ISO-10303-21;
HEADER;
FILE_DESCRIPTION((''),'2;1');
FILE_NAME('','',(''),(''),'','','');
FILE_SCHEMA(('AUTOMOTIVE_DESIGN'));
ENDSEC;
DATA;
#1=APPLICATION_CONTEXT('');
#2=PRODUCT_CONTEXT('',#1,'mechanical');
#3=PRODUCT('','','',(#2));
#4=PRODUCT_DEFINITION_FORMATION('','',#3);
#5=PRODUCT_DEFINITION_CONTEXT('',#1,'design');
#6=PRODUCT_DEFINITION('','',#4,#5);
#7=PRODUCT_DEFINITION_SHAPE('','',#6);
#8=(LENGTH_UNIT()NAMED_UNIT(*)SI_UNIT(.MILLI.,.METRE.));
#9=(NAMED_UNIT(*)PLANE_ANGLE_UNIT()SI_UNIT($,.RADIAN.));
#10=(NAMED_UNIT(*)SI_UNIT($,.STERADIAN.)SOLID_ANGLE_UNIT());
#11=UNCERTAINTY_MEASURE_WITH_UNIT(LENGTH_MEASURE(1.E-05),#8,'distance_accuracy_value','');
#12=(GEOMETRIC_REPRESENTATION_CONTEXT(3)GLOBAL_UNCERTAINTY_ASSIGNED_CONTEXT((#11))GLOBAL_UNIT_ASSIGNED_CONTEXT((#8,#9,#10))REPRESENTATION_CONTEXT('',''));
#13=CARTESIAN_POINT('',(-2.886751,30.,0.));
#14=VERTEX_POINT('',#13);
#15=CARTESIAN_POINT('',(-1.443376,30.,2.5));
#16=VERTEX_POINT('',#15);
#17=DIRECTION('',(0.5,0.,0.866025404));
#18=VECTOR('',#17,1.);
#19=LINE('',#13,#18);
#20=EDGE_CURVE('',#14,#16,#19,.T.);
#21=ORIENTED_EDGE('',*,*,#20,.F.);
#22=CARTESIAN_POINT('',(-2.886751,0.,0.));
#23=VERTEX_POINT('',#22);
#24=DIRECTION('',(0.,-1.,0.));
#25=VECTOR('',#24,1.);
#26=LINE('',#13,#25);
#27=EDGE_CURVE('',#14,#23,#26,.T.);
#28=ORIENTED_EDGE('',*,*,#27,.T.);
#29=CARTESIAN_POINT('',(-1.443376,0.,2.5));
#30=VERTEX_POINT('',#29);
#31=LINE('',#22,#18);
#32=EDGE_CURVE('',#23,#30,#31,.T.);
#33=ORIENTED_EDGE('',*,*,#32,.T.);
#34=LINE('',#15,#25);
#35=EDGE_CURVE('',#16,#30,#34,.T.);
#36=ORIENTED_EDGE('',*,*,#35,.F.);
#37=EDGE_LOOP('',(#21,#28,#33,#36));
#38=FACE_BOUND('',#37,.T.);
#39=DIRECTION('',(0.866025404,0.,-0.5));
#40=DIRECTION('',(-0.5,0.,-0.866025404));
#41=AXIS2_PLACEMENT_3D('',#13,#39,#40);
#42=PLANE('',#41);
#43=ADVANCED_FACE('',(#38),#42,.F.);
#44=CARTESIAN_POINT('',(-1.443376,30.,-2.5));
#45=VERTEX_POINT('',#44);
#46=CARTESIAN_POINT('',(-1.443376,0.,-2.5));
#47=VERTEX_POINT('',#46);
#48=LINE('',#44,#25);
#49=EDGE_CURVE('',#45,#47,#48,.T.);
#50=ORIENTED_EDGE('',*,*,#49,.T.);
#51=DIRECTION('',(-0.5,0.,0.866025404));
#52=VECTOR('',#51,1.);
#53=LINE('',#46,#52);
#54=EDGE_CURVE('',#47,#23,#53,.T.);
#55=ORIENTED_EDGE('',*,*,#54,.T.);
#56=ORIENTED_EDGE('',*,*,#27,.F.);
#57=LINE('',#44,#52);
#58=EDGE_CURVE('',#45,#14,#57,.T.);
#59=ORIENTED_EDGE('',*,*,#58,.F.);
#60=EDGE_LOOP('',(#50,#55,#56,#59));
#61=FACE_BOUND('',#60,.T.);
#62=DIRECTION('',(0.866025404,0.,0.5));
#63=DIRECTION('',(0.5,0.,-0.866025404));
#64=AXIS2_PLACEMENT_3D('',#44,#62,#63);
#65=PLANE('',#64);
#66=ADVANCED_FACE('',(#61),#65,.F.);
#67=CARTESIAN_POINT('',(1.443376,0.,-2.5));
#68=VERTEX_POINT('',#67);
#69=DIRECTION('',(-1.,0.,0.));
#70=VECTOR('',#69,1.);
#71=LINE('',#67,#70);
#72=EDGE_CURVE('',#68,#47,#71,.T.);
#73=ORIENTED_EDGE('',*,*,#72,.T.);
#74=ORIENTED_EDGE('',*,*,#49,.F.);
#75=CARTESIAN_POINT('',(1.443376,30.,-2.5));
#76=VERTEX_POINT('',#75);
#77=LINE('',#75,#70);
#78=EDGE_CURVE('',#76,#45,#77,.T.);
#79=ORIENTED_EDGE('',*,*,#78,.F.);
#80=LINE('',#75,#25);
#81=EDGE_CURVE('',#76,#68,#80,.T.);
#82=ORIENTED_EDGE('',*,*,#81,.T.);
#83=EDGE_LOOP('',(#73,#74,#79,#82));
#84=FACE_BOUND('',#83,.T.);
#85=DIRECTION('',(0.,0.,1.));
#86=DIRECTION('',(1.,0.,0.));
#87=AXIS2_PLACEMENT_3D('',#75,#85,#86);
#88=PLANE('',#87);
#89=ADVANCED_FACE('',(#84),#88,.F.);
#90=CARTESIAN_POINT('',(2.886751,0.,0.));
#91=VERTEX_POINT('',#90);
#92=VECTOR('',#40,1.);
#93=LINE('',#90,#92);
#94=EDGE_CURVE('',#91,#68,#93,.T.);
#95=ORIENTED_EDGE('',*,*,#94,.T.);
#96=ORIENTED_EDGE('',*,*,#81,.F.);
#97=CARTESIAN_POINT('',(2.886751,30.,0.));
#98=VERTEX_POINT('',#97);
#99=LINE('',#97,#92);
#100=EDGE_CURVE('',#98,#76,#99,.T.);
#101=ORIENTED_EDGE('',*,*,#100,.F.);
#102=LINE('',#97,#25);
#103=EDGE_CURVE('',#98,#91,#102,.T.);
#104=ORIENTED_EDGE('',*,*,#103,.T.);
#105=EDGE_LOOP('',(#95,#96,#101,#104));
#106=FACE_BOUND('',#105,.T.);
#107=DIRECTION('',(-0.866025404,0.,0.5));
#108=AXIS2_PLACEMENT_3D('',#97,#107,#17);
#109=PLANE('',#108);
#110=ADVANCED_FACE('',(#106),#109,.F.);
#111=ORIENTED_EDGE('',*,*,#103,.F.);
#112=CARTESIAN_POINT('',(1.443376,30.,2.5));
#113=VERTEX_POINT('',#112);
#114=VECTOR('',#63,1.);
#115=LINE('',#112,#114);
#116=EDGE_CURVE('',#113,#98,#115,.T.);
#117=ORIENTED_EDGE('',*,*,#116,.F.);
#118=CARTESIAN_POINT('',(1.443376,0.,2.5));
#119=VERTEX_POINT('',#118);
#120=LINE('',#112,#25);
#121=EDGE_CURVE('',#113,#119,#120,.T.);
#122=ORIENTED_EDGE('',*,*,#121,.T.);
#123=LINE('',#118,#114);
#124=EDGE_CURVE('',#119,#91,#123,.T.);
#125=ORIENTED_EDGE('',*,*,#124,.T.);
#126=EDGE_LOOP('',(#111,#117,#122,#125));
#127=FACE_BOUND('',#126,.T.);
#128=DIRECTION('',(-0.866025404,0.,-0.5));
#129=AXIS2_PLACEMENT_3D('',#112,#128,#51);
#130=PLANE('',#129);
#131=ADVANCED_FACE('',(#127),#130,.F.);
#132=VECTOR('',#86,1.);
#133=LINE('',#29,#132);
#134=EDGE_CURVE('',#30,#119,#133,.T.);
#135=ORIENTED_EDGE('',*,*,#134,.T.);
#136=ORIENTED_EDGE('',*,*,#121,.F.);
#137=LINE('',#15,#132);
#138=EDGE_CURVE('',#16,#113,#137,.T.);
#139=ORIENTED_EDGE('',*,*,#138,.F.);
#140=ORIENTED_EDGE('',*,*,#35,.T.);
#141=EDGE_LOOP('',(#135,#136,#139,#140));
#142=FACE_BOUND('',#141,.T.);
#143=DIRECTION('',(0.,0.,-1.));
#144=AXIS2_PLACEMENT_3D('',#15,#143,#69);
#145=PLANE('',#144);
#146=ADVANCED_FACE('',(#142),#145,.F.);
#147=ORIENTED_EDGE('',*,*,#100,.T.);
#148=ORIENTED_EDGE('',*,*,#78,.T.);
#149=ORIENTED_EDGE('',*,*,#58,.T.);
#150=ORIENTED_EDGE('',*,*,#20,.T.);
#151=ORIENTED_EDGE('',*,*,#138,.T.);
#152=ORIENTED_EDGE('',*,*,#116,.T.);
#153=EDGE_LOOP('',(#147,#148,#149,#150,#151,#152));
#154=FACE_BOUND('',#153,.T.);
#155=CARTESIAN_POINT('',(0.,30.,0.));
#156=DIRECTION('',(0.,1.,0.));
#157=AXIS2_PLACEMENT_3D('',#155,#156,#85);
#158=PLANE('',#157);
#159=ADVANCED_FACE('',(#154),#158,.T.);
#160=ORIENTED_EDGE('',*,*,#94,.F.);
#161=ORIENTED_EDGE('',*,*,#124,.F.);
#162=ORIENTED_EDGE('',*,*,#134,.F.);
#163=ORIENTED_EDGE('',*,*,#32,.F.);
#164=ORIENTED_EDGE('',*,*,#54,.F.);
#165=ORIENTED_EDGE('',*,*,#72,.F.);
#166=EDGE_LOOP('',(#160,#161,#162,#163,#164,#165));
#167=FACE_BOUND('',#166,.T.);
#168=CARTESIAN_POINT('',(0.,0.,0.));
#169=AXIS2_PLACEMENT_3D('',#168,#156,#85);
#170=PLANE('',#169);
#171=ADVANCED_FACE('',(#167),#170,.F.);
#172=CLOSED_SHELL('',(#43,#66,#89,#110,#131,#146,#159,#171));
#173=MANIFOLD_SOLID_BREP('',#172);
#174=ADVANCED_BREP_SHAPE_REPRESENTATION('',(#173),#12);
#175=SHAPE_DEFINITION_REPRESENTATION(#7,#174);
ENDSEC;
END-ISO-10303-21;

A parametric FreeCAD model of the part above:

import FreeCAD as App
import Part
import Sketcher

V = App.Vector
Q = App.Units.Quantity


def add_polygon(sketch, points):
    """Adds a closed chain of lines whose ends are joined by coincident constraints."""
    first, n = sketch.GeometryCount, len(points)
    for a, b in zip(points, points[1:] + points[:1]):
        sketch.addGeometry(Part.LineSegment(App.Vector(*a, 0), App.Vector(*b, 0)), False)
    for i in range(n):
        sketch.addConstraint(Sketcher.Constraint("Coincident", first + i, 2, first + (i + 1) % n, 1))

doc = App.newDocument("Part")
body = doc.addObject("PartDesign::Body", "Body")

# Sketch on XZ plane
sketch1 = doc.addObject("Sketcher::SketchObject", "Sketch")
body.addObject(sketch1)
sketch1.AttachmentSupport = (doc.XZ_Plane, [""])
sketch1.MapMode = "FlatFace"
add_polygon(sketch1, [(2.9, 0), (1.4, -2.5), (-1.4, -2.5), (-2.9, 0), (-1.4, 2.5), (1.4, 2.5)])  # lines 0-5
sketch1.addConstraint([
    Sketcher.Constraint("Horizontal", 1),
    Sketcher.Constraint("Horizontal", 4),
    Sketcher.Constraint("Symmetric", 0, 2, 3, 2, -1, 1),
    Sketcher.Constraint("Symmetric", 2, 2, 5, 2, -1, 1),
    Sketcher.Constraint("PointOnObject", 2, 2, -1),
    Sketcher.Constraint("Parallel", 2, 5),
    Sketcher.Constraint("Vertical", 1, 2, 3, 2),
    Sketcher.Constraint("Angle", 0, Q("-120 deg")),
    Sketcher.Constraint("DistanceY", 1, 2, 3, 2, 5.0),
    Sketcher.Constraint("DistanceX", 1, 2, 1, 1, 2.886751),
])
pad1 = doc.addObject("PartDesign::Pad", "Pad")
body.addObject(pad1)
pad1.Profile = sketch1
pad1.Length = 30
pad1.Reversed = True

doc.recompute()
